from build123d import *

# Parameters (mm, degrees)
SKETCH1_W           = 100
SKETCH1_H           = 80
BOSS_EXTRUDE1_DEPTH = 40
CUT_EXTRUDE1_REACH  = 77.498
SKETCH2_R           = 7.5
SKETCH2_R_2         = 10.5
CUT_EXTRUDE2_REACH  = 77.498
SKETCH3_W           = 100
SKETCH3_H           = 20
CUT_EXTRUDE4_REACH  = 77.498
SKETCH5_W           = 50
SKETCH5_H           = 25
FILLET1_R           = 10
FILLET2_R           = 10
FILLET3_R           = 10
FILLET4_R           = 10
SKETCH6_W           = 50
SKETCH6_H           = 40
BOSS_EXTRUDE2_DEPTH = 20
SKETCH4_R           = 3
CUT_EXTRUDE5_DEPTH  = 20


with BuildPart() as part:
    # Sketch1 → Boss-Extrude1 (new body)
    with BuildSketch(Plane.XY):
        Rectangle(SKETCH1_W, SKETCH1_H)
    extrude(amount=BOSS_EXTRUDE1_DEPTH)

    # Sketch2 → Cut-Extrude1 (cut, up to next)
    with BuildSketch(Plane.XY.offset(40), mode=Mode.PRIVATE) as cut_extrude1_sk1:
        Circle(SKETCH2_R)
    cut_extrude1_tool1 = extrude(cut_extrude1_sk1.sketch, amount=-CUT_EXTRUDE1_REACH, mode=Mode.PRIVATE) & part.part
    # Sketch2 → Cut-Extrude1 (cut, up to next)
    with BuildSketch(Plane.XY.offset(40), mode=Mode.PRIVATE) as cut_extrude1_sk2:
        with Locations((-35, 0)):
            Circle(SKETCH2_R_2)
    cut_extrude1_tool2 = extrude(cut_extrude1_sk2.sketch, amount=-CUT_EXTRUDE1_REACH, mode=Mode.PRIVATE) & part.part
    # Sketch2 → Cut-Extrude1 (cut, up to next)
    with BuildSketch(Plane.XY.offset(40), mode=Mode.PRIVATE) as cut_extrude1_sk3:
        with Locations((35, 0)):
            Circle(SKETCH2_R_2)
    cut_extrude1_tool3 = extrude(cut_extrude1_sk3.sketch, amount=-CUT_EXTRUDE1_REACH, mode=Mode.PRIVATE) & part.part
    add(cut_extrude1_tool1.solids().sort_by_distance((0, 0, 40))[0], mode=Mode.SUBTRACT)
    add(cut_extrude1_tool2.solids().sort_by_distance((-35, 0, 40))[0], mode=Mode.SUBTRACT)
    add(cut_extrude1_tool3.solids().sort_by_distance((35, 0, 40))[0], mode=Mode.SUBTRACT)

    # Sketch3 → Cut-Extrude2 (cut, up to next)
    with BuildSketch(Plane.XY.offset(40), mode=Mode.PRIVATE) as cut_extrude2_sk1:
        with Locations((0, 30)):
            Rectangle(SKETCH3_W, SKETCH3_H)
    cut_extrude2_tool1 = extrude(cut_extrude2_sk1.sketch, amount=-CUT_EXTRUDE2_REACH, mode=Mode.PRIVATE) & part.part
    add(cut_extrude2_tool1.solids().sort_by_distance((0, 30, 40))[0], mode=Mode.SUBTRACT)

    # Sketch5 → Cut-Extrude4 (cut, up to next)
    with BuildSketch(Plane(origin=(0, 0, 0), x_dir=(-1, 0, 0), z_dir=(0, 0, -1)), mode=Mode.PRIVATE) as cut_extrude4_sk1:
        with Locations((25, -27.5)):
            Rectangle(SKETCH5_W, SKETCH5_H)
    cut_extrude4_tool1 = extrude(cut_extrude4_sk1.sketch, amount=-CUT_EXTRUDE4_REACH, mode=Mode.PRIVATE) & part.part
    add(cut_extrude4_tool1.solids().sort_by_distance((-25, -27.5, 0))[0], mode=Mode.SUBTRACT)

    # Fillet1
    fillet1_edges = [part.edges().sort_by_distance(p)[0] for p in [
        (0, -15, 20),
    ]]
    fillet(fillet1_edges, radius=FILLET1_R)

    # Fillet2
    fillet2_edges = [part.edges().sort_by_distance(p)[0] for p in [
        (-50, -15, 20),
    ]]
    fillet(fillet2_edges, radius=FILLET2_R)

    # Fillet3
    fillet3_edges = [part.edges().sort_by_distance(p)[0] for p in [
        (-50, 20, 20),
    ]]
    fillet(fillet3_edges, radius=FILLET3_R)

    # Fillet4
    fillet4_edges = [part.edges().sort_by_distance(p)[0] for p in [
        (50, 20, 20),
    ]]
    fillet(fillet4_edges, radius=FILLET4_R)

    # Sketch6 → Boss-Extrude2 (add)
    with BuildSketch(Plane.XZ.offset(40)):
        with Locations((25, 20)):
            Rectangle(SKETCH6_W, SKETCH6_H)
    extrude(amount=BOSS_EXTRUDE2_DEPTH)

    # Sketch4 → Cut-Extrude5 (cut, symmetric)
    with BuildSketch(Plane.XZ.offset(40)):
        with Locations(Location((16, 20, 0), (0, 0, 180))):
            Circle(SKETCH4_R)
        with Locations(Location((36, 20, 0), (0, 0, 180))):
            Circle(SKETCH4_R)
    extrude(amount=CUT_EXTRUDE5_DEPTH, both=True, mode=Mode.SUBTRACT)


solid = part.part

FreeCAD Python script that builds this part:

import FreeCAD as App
import Part
import Sketcher

V = App.Vector
Q = App.Units.Quantity


def edges_at(feature, points):
    """Names of the edges that pass closest to the given points."""
    edges = feature.Shape.Edges
    near = lambda p: min(range(len(edges)), key=lambda i: edges[i].distToShape(Part.Vertex(*p))[0])
    return sorted({f"Edge{near(p) + 1}" for p in points})

doc = App.newDocument("Part")
params = doc.addObject("Spreadsheet::Sheet", "Params")
for row, (alias, value) in enumerate([
    ("sketch1_width", "100 mm"),
    ("sketch1_height", "80 mm"),
    ("pad1_length", "40 mm"),
    ("sketch2_diameter", "15 mm"),
    ("sketch3_diameter", "21 mm"),
    ("sketch4_diameter", "21 mm"),
    ("sketch5_width", "100 mm"),
    ("sketch5_height", "20 mm"),
    ("sketch6_width", "50 mm"),
    ("sketch6_height", "25 mm"),
    ("fillet_radius", "10 mm"),
    ("fillet2_radius", "10 mm"),
    ("fillet3_radius", "10 mm"),
    ("fillet4_radius", "10 mm"),
    ("sketch7_width", "50 mm"),
    ("sketch7_height", "40 mm"),
    ("pad2_length", "20 mm"),
    ("sketch8_diameter", "6 mm"),
    ("pocket6_length", "40 mm"),
], start=1):
    params.set(f"A{row}", alias)
    params.set(f"B{row}", "=" + value)
    params.setAlias(f"B{row}", alias)

body = doc.addObject("PartDesign::Body", "Body")

# Sketch on XY plane
sketch1 = doc.addObject("Sketcher::SketchObject", "Sketch")
body.addObject(sketch1)
sketch1.AttachmentSupport = (doc.XY_Plane, [""])
sketch1.MapMode = "FlatFace"
sketch1.addGeometry([
    Part.LineSegment(V(-50, 40, 0), V(-50, -40, 0)),
    Part.LineSegment(V(-50, -40, 0), V(50, -40, 0)),
    Part.LineSegment(V(50, -40, 0), V(50, 40, 0)),
    Part.LineSegment(V(50, 40, 0), V(-50, 40, 0)),
], False)
sketch1.addConstraint([
    Sketcher.Constraint("Coincident", 0, 2, 1, 1),
    Sketcher.Constraint("Coincident", 1, 2, 2, 1),
    Sketcher.Constraint("Coincident", 2, 2, 3, 1),
    Sketcher.Constraint("Coincident", 3, 2, 0, 1),
    Sketcher.Constraint("Vertical", 0),
    Sketcher.Constraint("Horizontal", 1),
    Sketcher.Constraint("Vertical", 2),
    Sketcher.Constraint("Horizontal", 3),
    Sketcher.Constraint("Symmetric", 0, 2, 2, 2, -1, 1),
    Sketcher.Constraint("DistanceX", 1, 1, 1, 2, Q("100 mm")),
    Sketcher.Constraint("DistanceY", 0, 2, 0, 1, Q("80 mm")),
])
sketch1.setExpression("Constraints[9]", "Params.sketch1_width")
sketch1.setExpression("Constraints[10]", "Params.sketch1_height")
pad1 = doc.addObject("PartDesign::Pad", "Pad")
body.addObject(pad1)
pad1.Profile = sketch1
pad1.setExpression("Length", "Params.pad1_length")

# Sketch on XY plane
sketch2 = doc.addObject("Sketcher::SketchObject", "Sketch001")
body.addObject(sketch2)
sketch2.AttachmentSupport = (doc.XY_Plane, [""])
sketch2.MapMode = "FlatFace"
sketch2.AttachmentOffset = App.Placement(V(0, 0, 40), App.Rotation())
sketch2.addGeometry(Part.Circle(V(0, 0, 0), V(0, 0, 1), 8), False)
sketch2.addConstraint([
    Sketcher.Constraint("Coincident", 0, 3, -1, 1),
    Sketcher.Constraint("Diameter", 0, Q("15 mm")),
])
sketch2.setExpression("Constraints[1]", "Params.sketch2_diameter")
pocket1 = doc.addObject("PartDesign::Pocket", "Pocket")
body.addObject(pocket1)
pocket1.Profile = sketch2
pocket1.Type = "UpToFirst"

# Sketch on XY plane
sketch3 = doc.addObject("Sketcher::SketchObject", "Sketch002")
body.addObject(sketch3)
sketch3.AttachmentSupport = (doc.XY_Plane, [""])
sketch3.MapMode = "FlatFace"
sketch3.AttachmentOffset = App.Placement(V(0, 0, 40), App.Rotation())
sketch3.addGeometry(Part.Circle(V(-35, 0, 0), V(0, 0, 1), 10), False)
sketch3.addConstraint([
    Sketcher.Constraint("PointOnObject", 0, 3, -1),
    Sketcher.Constraint("Diameter", 0, Q("21 mm")),
    Sketcher.Constraint("DistanceX", 0, 3, -1, 1, Q("35 mm")),
])
sketch3.setExpression("Constraints[1]", "Params.sketch3_diameter")
pocket2 = doc.addObject("PartDesign::Pocket", "Pocket001")
body.addObject(pocket2)
pocket2.Profile = sketch3
pocket2.Type = "UpToFirst"

# Sketch on XY plane
sketch4 = doc.addObject("Sketcher::SketchObject", "Sketch003")
body.addObject(sketch4)
sketch4.AttachmentSupport = (doc.XY_Plane, [""])
sketch4.MapMode = "FlatFace"
sketch4.AttachmentOffset = App.Placement(V(0, 0, 40), App.Rotation())
sketch4.addGeometry(Part.Circle(V(35, 0, 0), V(0, 0, 1), 10), False)
sketch4.addConstraint([
    Sketcher.Constraint("PointOnObject", 0, 3, -1),
    Sketcher.Constraint("Diameter", 0, Q("21 mm")),
    Sketcher.Constraint("DistanceX", -1, 1, 0, 3, Q("35 mm")),
])
sketch4.setExpression("Constraints[1]", "Params.sketch4_diameter")
pocket3 = doc.addObject("PartDesign::Pocket", "Pocket002")
body.addObject(pocket3)
pocket3.Profile = sketch4
pocket3.Type = "UpToFirst"

# Sketch on XY plane
sketch5 = doc.addObject("Sketcher::SketchObject", "Sketch004")
body.addObject(sketch5)
sketch5.AttachmentSupport = (doc.XY_Plane, [""])
sketch5.MapMode = "FlatFace"
sketch5.AttachmentOffset = App.Placement(V(0, 0, 40), App.Rotation())
sketch5.addGeometry([
    Part.LineSegment(V(-50, 40, 0), V(-50, 20, 0)),
    Part.LineSegment(V(-50, 20, 0), V(50, 20, 0)),
    Part.LineSegment(V(50, 20, 0), V(50, 40, 0)),
    Part.LineSegment(V(50, 40, 0), V(-50, 40, 0)),
], False)
sketch5.addConstraint([
    Sketcher.Constraint("Coincident", 0, 2, 1, 1),
    Sketcher.Constraint("Coincident", 1, 2, 2, 1),
    Sketcher.Constraint("Coincident", 2, 2, 3, 1),
    Sketcher.Constraint("Coincident", 3, 2, 0, 1),
    Sketcher.Constraint("Vertical", 0),
    Sketcher.Constraint("Horizontal", 1),
    Sketcher.Constraint("Vertical", 2),
    Sketcher.Constraint("Horizontal", 3),
    Sketcher.Constraint("DistanceX", 1, 1, 1, 2, Q("100 mm")),
    Sketcher.Constraint("DistanceY", 0, 2, 0, 1, Q("20 mm")),
    Sketcher.Constraint("DistanceX", 0, 2, -1, 1, Q("50 mm")),
    Sketcher.Constraint("DistanceY", -1, 1, 0, 2, Q("20 mm")),
])
sketch5.setExpression("Constraints[8]", "Params.sketch5_width")
sketch5.setExpression("Constraints[9]", "Params.sketch5_height")
pocket4 = doc.addObject("PartDesign::Pocket", "Pocket003")
body.addObject(pocket4)
pocket4.Profile = sketch5
pocket4.Type = "UpToFirst"

# Sketch on XY plane
sketch6 = doc.addObject("Sketcher::SketchObject", "Sketch005")
body.addObject(sketch6)
sketch6.AttachmentSupport = (doc.XY_Plane, [""])
sketch6.MapMode = "FlatFace"
sketch6.addGeometry([
    Part.LineSegment(V(0, -15, 0), V(0, -40, 0)),
    Part.LineSegment(V(0, -40, 0), V(-50, -40, 0)),
    Part.LineSegment(V(-50, -40, 0), V(-50, -15, 0)),
    Part.LineSegment(V(-50, -15, 0), V(0, -15, 0)),
], False)
sketch6.addConstraint([
    Sketcher.Constraint("Coincident", 0, 2, 1, 1),
    Sketcher.Constraint("Coincident", 1, 2, 2, 1),
    Sketcher.Constraint("Coincident", 2, 2, 3, 1),
    Sketcher.Constraint("Coincident", 3, 2, 0, 1),
    Sketcher.Constraint("Vertical", 0),
    Sketcher.Constraint("Horizontal", 1),
    Sketcher.Constraint("Vertical", 2),
    Sketcher.Constraint("Horizontal", 3),
    Sketcher.Constraint("PointOnObject", 0, 2, -2),
    Sketcher.Constraint("DistanceX", 1, 2, 1, 1, Q("50 mm")),
    Sketcher.Constraint("DistanceY", 0, 2, 0, 1, Q("25 mm")),
    Sketcher.Constraint("DistanceY", 0, 2, -1, 1, Q("40 mm")),
])
sketch6.setExpression("Constraints[9]", "Params.sketch6_width")
sketch6.setExpression("Constraints[10]", "Params.sketch6_height")
pocket5 = doc.addObject("PartDesign::Pocket", "Pocket004")
body.addObject(pocket5)
pocket5.Profile = sketch6
pocket5.Type = "UpToFirst"
pocket5.Reversed = True
doc.recompute()

fillet = doc.addObject("PartDesign::Fillet", "Fillet")
body.addObject(fillet)
fillet.Base = (pocket5, edges_at(pocket5, [(0, -15, 20)]))
fillet.setExpression("Radius", "Params.fillet_radius")
doc.recompute()

fillet2 = doc.addObject("PartDesign::Fillet", "Fillet001")
body.addObject(fillet2)
fillet2.Base = (fillet, edges_at(fillet, [(-50, -15, 20)]))
fillet2.setExpression("Radius", "Params.fillet2_radius")
doc.recompute()

fillet3 = doc.addObject("PartDesign::Fillet", "Fillet002")
body.addObject(fillet3)
fillet3.Base = (fillet2, edges_at(fillet2, [(-50, 20, 20)]))
fillet3.setExpression("Radius", "Params.fillet3_radius")
doc.recompute()

fillet4 = doc.addObject("PartDesign::Fillet", "Fillet003")
body.addObject(fillet4)
fillet4.Base = (fillet3, edges_at(fillet3, [(50, 20, 20)]))
fillet4.setExpression("Radius", "Params.fillet4_radius")

# Sketch on XZ plane
sketch7 = doc.addObject("Sketcher::SketchObject", "Sketch006")
body.addObject(sketch7)
sketch7.AttachmentSupport = (doc.XZ_Plane, [""])
sketch7.MapMode = "FlatFace"
sketch7.AttachmentOffset = App.Placement(V(0, 0, 40), App.Rotation())
sketch7.addGeometry([
    Part.LineSegment(V(0, 40, 0), V(0, 0, 0)),
    Part.LineSegment(V(0, 0, 0), V(50, 0, 0)),
    Part.LineSegment(V(50, 0, 0), V(50, 40, 0)),
    Part.LineSegment(V(50, 40, 0), V(0, 40, 0)),
], False)
sketch7.addConstraint([
    Sketcher.Constraint("Coincident", 0, 2, 1, 1),
    Sketcher.Constraint("Coincident", 1, 2, 2, 1),
    Sketcher.Constraint("Coincident", 2, 2, 3, 1),
    Sketcher.Constraint("Coincident", 3, 2, 0, 1),
    Sketcher.Constraint("Vertical", 0),
    Sketcher.Constraint("Horizontal", 1),
    Sketcher.Constraint("Vertical", 2),
    Sketcher.Constraint("Horizontal", 3),
    Sketcher.Constraint("Coincident", 0, 2, -1, 1),
    Sketcher.Constraint("DistanceX", 1, 1, 1, 2, Q("50 mm")),
    Sketcher.Constraint("DistanceY", 0, 2, 0, 1, Q("40 mm")),
])
sketch7.setExpression("Constraints[9]", "Params.sketch7_width")
sketch7.setExpression("Constraints[10]", "Params.sketch7_height")
pad2 = doc.addObject("PartDesign::Pad", "Pad001")
body.addObject(pad2)
pad2.Profile = sketch7
pad2.setExpression("Length", "Params.pad2_length")

# Sketch on XZ plane
sketch8 = doc.addObject("Sketcher::SketchObject", "Sketch007")
body.addObject(sketch8)
sketch8.AttachmentSupport = (doc.XZ_Plane, [""])
sketch8.MapMode = "FlatFace"
sketch8.AttachmentOffset = App.Placement(V(0, 0, 40), App.Rotation())
sketch8.addGeometry([
    Part.Circle(V(16, 20, 0), V(0, 0, 1), 3),
    Part.Circle(V(36, 20, 0), V(0, 0, 1), 3),
], False)
sketch8.addConstraint([
    Sketcher.Constraint("Equal", 0, 1),
    Sketcher.Constraint("Horizontal", 0, 3, 1, 3),
    Sketcher.Constraint("Diameter", 0, Q("6 mm")),
    Sketcher.Constraint("DistanceX", -1, 1, 0, 3, Q("16 mm")),
    Sketcher.Constraint("DistanceY", -1, 1, 0, 3, Q("20 mm")),
    Sketcher.Constraint("DistanceX", -1, 1, 1, 3, Q("36 mm")),
])
sketch8.setExpression("Constraints[2]", "Params.sketch8_diameter")
pocket6 = doc.addObject("PartDesign::Pocket", "Pocket005")
body.addObject(pocket6)
pocket6.Profile = sketch8
pocket6.setExpression("Length", "Params.pocket6_length")
pocket6.Midplane = True

doc.recompute()
